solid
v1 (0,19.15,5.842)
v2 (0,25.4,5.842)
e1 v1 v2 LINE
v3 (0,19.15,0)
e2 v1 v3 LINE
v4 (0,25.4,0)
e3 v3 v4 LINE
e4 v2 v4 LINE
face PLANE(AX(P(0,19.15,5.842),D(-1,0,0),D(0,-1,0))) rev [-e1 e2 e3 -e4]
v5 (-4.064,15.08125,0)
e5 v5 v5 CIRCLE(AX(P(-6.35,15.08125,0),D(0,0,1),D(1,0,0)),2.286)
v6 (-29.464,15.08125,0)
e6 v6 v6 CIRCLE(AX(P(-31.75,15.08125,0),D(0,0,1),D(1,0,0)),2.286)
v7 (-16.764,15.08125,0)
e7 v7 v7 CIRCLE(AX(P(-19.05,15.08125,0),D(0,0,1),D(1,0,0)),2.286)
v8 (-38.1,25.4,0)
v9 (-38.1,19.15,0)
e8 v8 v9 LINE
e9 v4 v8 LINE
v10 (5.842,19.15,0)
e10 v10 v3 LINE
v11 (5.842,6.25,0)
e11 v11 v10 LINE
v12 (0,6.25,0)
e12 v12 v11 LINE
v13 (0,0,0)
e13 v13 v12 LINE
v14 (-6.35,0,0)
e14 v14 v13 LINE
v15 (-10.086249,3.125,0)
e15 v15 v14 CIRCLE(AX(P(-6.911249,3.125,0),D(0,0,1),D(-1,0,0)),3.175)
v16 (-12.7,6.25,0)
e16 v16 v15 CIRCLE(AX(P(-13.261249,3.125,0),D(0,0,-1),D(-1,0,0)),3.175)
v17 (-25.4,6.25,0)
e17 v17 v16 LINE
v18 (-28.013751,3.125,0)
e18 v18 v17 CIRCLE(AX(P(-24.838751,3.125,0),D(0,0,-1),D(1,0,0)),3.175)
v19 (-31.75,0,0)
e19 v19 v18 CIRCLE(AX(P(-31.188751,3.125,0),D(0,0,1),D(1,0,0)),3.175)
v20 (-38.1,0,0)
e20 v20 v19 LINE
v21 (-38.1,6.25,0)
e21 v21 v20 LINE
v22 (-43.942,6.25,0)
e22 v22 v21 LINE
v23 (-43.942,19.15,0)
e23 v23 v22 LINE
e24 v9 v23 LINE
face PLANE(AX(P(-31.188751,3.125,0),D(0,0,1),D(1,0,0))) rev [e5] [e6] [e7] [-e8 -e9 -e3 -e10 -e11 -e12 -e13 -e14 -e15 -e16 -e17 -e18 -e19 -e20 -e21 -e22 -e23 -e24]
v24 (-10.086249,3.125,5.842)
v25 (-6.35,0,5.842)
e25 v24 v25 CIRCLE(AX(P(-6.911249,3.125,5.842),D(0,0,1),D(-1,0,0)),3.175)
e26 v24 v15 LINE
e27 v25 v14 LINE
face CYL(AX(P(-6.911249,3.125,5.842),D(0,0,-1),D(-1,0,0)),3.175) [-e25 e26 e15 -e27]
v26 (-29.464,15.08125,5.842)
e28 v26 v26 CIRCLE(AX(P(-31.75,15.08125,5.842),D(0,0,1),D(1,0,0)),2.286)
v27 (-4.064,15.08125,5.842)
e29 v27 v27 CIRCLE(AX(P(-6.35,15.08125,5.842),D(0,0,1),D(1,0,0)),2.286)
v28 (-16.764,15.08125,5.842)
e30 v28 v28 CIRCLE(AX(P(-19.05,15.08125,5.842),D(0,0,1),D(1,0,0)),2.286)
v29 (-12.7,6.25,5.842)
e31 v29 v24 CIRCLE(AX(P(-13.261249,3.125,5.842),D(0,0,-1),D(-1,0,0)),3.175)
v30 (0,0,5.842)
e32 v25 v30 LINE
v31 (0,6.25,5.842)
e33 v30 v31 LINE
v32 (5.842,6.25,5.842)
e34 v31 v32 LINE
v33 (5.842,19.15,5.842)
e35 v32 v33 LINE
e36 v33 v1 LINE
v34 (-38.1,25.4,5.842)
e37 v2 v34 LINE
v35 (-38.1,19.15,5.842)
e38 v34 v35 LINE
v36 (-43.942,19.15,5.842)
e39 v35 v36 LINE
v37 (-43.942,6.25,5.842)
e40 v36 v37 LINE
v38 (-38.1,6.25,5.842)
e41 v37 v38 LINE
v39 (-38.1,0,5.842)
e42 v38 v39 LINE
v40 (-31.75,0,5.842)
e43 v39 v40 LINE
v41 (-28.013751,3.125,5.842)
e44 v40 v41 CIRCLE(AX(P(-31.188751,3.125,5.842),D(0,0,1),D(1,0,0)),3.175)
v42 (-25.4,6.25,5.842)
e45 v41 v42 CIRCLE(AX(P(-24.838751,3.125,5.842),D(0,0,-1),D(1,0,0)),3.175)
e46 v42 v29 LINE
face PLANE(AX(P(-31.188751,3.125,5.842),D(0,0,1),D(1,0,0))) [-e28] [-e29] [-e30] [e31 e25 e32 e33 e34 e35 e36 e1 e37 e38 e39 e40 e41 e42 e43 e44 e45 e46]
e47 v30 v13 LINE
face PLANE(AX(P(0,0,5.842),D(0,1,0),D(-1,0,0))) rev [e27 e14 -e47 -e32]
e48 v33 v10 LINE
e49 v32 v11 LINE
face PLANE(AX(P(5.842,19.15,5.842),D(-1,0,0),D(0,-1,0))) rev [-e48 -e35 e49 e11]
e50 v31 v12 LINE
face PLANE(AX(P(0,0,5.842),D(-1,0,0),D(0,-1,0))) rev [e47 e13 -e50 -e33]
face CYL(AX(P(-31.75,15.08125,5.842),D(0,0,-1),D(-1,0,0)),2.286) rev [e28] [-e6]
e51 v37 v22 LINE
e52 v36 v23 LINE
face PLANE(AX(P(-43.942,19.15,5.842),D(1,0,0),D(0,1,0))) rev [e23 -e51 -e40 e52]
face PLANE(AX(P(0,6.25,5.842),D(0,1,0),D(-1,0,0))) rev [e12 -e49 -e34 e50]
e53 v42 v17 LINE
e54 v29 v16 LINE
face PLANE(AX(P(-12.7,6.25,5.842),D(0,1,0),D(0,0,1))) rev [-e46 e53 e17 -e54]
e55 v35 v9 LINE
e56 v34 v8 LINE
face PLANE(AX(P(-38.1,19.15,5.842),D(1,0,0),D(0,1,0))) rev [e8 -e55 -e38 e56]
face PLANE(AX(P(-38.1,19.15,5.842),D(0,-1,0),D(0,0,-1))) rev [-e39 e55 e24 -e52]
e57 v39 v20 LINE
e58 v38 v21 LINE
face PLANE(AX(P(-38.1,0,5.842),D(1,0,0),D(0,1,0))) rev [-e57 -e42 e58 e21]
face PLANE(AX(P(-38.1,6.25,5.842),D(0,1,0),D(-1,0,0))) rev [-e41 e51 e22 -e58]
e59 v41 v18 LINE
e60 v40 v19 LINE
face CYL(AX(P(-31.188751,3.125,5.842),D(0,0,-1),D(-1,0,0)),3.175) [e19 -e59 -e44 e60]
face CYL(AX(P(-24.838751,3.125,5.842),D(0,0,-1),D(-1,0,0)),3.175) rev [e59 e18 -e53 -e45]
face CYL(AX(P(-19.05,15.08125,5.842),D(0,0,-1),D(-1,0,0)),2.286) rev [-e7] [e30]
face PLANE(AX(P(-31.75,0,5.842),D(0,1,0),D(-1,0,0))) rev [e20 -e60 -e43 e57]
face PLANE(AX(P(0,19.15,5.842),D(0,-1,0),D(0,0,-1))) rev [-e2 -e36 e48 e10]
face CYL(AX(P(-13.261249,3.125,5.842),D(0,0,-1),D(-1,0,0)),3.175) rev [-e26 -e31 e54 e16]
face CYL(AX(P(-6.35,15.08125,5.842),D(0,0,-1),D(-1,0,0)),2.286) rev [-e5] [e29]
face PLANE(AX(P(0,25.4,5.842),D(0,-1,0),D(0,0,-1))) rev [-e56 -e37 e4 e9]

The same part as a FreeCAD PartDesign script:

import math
import FreeCAD as App
import Part
import Sketcher
from FreeCAD import Vector
Q = App.Units.Quantity

doc = App.newDocument("Part")
body = doc.addObject("PartDesign::Body", "Body")

sketch1 = body.newObject("Sketcher::SketchObject", "Sketch")
sketch1.AttachmentSupport = (doc.getObject("XY_Plane"), [""])
sketch1.MapMode = "FlatFace"
sketch1.addGeometry(Part.LineSegment(Vector(-6.3, 0, 0), Vector(0, 0, 0)), False)
sketch1.addGeometry(Part.LineSegment(Vector(0, 0, 0), Vector(0, 6.2, 0)), False)
sketch1.addGeometry(Part.LineSegment(Vector(0, 6.2, 0), Vector(5.8, 6.2, 0)), False)
sketch1.addGeometry(Part.LineSegment(Vector(5.8, 6.2, 0), Vector(5.8, 19.1, 0)), False)
sketch1.addGeometry(Part.LineSegment(Vector(5.8, 19.1, 0), Vector(0, 19.1, 0)), False)
sketch1.addGeometry(Part.LineSegment(Vector(0, 19.1, 0), Vector(0, 25.4, 0)), False)
sketch1.addGeometry(Part.LineSegment(Vector(0, 25.4, 0), Vector(-38.1, 25.4, 0)), False)
sketch1.addGeometry(Part.LineSegment(Vector(-38.1, 25.4, 0), Vector(-38.1, 19.1, 0)), False)
sketch1.addGeometry(Part.LineSegment(Vector(-38.1, 19.1, 0), Vector(-43.9, 19.1, 0)), False)
sketch1.addGeometry(Part.LineSegment(Vector(-43.9, 19.1, 0), Vector(-43.9, 6.2, 0)), False)
sketch1.addGeometry(Part.LineSegment(Vector(-43.9, 6.2, 0), Vector(-38.1, 6.2, 0)), False)
sketch1.addGeometry(Part.LineSegment(Vector(-38.1, 6.2, 0), Vector(-38.1, 0, 0)), False)
sketch1.addGeometry(Part.LineSegment(Vector(-38.1, 0, 0), Vector(-31.8, 0, 0)), False)
sketch1.addGeometry(Part.ArcOfCircle(Part.Circle(Vector(-31.2, 3.1, 0), Vector(0, 0, 1), 3.2), math.radians(-100), math.radians(0)), False)
sketch1.addGeometry(Part.ArcOfCircle(Part.Circle(Vector(-24.8, 3.1, 0), Vector(0, 0, 1), 3.2), math.radians(100), math.radians(180)), False)
sketch1.addGeometry(Part.LineSegment(Vector(-25.4, 6.2, 0), Vector(-12.7, 6.2, 0)), False)
sketch1.addGeometry(Part.ArcOfCircle(Part.Circle(Vector(-13.3, 3.1, 0), Vector(0, 0, 1), 3.2), math.radians(0), math.radians(80)), False)
sketch1.addGeometry(Part.ArcOfCircle(Part.Circle(Vector(-6.9, 3.1, 0), Vector(0, 0, 1), 3.2), math.radians(180), math.radians(280)), False)
sketch1.addGeometry(Part.Circle(Vector(-6.3, 15.1, 0), Vector(0, 0, 1), 2.3), False)
sketch1.addGeometry(Part.Circle(Vector(-19.1, 15.1, 0), Vector(0, 0, 1), 2.3), False)
sketch1.addGeometry(Part.Circle(Vector(-31.8, 15.1, 0), Vector(0, 0, 1), 2.3), False)
sketch1.addConstraint(Sketcher.Constraint("Coincident", 0, 2, 1, 1))
sketch1.addConstraint(Sketcher.Constraint("Coincident", 1, 2, 2, 1))
sketch1.addConstraint(Sketcher.Constraint("Coincident", 2, 2, 3, 1))
sketch1.addConstraint(Sketcher.Constraint("Coincident", 3, 2, 4, 1))
sketch1.addConstraint(Sketcher.Constraint("Coincident", 4, 2, 5, 1))
sketch1.addConstraint(Sketcher.Constraint("Coincident", 5, 2, 6, 1))
sketch1.addConstraint(Sketcher.Constraint("Coincident", 6, 2, 7, 1))
sketch1.addConstraint(Sketcher.Constraint("Coincident", 7, 2, 8, 1))
sketch1.addConstraint(Sketcher.Constraint("Coincident", 8, 2, 9, 1))
sketch1.addConstraint(Sketcher.Constraint("Coincident", 9, 2, 10, 1))
sketch1.addConstraint(Sketcher.Constraint("Coincident", 10, 2, 11, 1))
sketch1.addConstraint(Sketcher.Constraint("Coincident", 11, 2, 12, 1))
sketch1.addConstraint(Sketcher.Constraint("Coincident", 12, 2, 13, 1))
sketch1.addConstraint(Sketcher.Constraint("Tangent", 13, 2, 14, 2))
sketch1.addConstraint(Sketcher.Constraint("Coincident", 14, 1, 15, 1))
sketch1.addConstraint(Sketcher.Constraint("Coincident", 15, 2, 16, 2))
sketch1.addConstraint(Sketcher.Constraint("Tangent", 16, 1, 17, 1))
sketch1.addConstraint(Sketcher.Constraint("Coincident", 17, 2, 0, 1))
sketch1.addConstraint(Sketcher.Constraint("Horizontal", 0))
sketch1.addConstraint(Sketcher.Constraint("Vertical", 1))
sketch1.addConstraint(Sketcher.Constraint("Horizontal", 2))
sketch1.addConstraint(Sketcher.Constraint("Vertical", 3))
sketch1.addConstraint(Sketcher.Constraint("Horizontal", 4))
sketch1.addConstraint(Sketcher.Constraint("Vertical", 5))
sketch1.addConstraint(Sketcher.Constraint("Horizontal", 6))
sketch1.addConstraint(Sketcher.Constraint("Vertical", 7))
sketch1.addConstraint(Sketcher.Constraint("Horizontal", 8))
sketch1.addConstraint(Sketcher.Constraint("Vertical", 9))
sketch1.addConstraint(Sketcher.Constraint("Horizontal", 10))
sketch1.addConstraint(Sketcher.Constraint("Vertical", 11))
sketch1.addConstraint(Sketcher.Constraint("Horizontal", 12))
sketch1.addConstraint(Sketcher.Constraint("Horizontal", 15))
sketch1.addConstraint(Sketcher.Constraint("Coincident", 0, 2, -1, 1))
sketch1.addConstraint(Sketcher.Constraint("Equal", 13, 14))
sketch1.addConstraint(Sketcher.Constraint("Equal", 14, 16))
sketch1.addConstraint(Sketcher.Constraint("Equal", 16, 17))
sketch1.addConstraint(Sketcher.Constraint("Equal", 18, 19))
sketch1.addConstraint(Sketcher.Constraint("Equal", 19, 20))
sketch1.addConstraint(Sketcher.Constraint("PointOnObject", 4, 2, -2))
sketch1.addConstraint(Sketcher.Constraint("PointOnObject", 11, 2, -1))
sketch1.addConstraint(Sketcher.Constraint("Horizontal", 13, 3, 14, 3))
sketch1.addConstraint(Sketcher.Constraint("Horizontal", 14, 3, 16, 3))
sketch1.addConstraint(Sketcher.Constraint("Horizontal", 16, 3, 17, 3))
sketch1.addConstraint(Sketcher.Constraint("Horizontal", 18, 3, 19, 3))
sketch1.addConstraint(Sketcher.Constraint("Horizontal", 19, 3, 20, 3))
sketch1.addConstraint(Sketcher.Constraint("Horizontal", 4, 2, 7, 2))
sketch1.addConstraint(Sketcher.Constraint("Horizontal", 2, 2, 9, 2))
sketch1.addConstraint(Sketcher.Constraint("Horizontal", 10, 2, 14, 1))
sketch1.addConstraint(Sketcher.Constraint("Vertical", 7, 2, 10, 2))
sketch1.addConstraint(Sketcher.Constraint("Vertical", 20, 3, 12, 2))
sketch1.addConstraint(Sketcher.Constraint("Vertical", 18, 3, 17, 2))
sketch1.addConstraint(Sketcher.Constraint("Equal", 4, 8))
sketch1.addConstraint(Sketcher.Constraint("Equal", 0, 12))
sketch1.addConstraint(Sketcher.Constraint("Equal", 1, 5))
sketch1.addConstraint(Sketcher.Constraint("Diameter", 18, Q("0.18 in")))
sketch1.addConstraint(Sketcher.Constraint("DistanceX", 6, 2, 6, 1, Q("1.5 in")))
sketch1.addConstraint(Sketcher.Constraint("DistanceX", 15, 1, 15, 2, Q("0.5 in")))
sketch1.addConstraint(Sketcher.Constraint("DistanceY", -1, 1, 5, 2, Q("1 in")))
sketch1.addConstraint(Sketcher.Constraint("Radius", 13, Q("0.125 in")))
sketch1.addConstraint(Sketcher.Constraint("DistanceX", 20, 3, 18, 3, Q("1 in")))
sketch1.addConstraint(Sketcher.Constraint("DistanceX", 2, 1, 2, 2, Q("0.23 in")))
sketch1.addConstraint(Sketcher.Constraint("DistanceX", 19, 3, 18, 3, Q("0.5 in")))
sketch1.addConstraint(Sketcher.Constraint("DistanceY", -1, 1, 18, 3, Q("0.59375 in")))
sketch1.addConstraint(Sketcher.Constraint("DistanceY", 1, 1, 1, 2, Q("6.25 mm")))
pad1 = body.newObject("PartDesign::Pad", "Pad")
pad1.Profile = sketch1
pad1.Length = Q("0.23 in")

doc.recompute()
